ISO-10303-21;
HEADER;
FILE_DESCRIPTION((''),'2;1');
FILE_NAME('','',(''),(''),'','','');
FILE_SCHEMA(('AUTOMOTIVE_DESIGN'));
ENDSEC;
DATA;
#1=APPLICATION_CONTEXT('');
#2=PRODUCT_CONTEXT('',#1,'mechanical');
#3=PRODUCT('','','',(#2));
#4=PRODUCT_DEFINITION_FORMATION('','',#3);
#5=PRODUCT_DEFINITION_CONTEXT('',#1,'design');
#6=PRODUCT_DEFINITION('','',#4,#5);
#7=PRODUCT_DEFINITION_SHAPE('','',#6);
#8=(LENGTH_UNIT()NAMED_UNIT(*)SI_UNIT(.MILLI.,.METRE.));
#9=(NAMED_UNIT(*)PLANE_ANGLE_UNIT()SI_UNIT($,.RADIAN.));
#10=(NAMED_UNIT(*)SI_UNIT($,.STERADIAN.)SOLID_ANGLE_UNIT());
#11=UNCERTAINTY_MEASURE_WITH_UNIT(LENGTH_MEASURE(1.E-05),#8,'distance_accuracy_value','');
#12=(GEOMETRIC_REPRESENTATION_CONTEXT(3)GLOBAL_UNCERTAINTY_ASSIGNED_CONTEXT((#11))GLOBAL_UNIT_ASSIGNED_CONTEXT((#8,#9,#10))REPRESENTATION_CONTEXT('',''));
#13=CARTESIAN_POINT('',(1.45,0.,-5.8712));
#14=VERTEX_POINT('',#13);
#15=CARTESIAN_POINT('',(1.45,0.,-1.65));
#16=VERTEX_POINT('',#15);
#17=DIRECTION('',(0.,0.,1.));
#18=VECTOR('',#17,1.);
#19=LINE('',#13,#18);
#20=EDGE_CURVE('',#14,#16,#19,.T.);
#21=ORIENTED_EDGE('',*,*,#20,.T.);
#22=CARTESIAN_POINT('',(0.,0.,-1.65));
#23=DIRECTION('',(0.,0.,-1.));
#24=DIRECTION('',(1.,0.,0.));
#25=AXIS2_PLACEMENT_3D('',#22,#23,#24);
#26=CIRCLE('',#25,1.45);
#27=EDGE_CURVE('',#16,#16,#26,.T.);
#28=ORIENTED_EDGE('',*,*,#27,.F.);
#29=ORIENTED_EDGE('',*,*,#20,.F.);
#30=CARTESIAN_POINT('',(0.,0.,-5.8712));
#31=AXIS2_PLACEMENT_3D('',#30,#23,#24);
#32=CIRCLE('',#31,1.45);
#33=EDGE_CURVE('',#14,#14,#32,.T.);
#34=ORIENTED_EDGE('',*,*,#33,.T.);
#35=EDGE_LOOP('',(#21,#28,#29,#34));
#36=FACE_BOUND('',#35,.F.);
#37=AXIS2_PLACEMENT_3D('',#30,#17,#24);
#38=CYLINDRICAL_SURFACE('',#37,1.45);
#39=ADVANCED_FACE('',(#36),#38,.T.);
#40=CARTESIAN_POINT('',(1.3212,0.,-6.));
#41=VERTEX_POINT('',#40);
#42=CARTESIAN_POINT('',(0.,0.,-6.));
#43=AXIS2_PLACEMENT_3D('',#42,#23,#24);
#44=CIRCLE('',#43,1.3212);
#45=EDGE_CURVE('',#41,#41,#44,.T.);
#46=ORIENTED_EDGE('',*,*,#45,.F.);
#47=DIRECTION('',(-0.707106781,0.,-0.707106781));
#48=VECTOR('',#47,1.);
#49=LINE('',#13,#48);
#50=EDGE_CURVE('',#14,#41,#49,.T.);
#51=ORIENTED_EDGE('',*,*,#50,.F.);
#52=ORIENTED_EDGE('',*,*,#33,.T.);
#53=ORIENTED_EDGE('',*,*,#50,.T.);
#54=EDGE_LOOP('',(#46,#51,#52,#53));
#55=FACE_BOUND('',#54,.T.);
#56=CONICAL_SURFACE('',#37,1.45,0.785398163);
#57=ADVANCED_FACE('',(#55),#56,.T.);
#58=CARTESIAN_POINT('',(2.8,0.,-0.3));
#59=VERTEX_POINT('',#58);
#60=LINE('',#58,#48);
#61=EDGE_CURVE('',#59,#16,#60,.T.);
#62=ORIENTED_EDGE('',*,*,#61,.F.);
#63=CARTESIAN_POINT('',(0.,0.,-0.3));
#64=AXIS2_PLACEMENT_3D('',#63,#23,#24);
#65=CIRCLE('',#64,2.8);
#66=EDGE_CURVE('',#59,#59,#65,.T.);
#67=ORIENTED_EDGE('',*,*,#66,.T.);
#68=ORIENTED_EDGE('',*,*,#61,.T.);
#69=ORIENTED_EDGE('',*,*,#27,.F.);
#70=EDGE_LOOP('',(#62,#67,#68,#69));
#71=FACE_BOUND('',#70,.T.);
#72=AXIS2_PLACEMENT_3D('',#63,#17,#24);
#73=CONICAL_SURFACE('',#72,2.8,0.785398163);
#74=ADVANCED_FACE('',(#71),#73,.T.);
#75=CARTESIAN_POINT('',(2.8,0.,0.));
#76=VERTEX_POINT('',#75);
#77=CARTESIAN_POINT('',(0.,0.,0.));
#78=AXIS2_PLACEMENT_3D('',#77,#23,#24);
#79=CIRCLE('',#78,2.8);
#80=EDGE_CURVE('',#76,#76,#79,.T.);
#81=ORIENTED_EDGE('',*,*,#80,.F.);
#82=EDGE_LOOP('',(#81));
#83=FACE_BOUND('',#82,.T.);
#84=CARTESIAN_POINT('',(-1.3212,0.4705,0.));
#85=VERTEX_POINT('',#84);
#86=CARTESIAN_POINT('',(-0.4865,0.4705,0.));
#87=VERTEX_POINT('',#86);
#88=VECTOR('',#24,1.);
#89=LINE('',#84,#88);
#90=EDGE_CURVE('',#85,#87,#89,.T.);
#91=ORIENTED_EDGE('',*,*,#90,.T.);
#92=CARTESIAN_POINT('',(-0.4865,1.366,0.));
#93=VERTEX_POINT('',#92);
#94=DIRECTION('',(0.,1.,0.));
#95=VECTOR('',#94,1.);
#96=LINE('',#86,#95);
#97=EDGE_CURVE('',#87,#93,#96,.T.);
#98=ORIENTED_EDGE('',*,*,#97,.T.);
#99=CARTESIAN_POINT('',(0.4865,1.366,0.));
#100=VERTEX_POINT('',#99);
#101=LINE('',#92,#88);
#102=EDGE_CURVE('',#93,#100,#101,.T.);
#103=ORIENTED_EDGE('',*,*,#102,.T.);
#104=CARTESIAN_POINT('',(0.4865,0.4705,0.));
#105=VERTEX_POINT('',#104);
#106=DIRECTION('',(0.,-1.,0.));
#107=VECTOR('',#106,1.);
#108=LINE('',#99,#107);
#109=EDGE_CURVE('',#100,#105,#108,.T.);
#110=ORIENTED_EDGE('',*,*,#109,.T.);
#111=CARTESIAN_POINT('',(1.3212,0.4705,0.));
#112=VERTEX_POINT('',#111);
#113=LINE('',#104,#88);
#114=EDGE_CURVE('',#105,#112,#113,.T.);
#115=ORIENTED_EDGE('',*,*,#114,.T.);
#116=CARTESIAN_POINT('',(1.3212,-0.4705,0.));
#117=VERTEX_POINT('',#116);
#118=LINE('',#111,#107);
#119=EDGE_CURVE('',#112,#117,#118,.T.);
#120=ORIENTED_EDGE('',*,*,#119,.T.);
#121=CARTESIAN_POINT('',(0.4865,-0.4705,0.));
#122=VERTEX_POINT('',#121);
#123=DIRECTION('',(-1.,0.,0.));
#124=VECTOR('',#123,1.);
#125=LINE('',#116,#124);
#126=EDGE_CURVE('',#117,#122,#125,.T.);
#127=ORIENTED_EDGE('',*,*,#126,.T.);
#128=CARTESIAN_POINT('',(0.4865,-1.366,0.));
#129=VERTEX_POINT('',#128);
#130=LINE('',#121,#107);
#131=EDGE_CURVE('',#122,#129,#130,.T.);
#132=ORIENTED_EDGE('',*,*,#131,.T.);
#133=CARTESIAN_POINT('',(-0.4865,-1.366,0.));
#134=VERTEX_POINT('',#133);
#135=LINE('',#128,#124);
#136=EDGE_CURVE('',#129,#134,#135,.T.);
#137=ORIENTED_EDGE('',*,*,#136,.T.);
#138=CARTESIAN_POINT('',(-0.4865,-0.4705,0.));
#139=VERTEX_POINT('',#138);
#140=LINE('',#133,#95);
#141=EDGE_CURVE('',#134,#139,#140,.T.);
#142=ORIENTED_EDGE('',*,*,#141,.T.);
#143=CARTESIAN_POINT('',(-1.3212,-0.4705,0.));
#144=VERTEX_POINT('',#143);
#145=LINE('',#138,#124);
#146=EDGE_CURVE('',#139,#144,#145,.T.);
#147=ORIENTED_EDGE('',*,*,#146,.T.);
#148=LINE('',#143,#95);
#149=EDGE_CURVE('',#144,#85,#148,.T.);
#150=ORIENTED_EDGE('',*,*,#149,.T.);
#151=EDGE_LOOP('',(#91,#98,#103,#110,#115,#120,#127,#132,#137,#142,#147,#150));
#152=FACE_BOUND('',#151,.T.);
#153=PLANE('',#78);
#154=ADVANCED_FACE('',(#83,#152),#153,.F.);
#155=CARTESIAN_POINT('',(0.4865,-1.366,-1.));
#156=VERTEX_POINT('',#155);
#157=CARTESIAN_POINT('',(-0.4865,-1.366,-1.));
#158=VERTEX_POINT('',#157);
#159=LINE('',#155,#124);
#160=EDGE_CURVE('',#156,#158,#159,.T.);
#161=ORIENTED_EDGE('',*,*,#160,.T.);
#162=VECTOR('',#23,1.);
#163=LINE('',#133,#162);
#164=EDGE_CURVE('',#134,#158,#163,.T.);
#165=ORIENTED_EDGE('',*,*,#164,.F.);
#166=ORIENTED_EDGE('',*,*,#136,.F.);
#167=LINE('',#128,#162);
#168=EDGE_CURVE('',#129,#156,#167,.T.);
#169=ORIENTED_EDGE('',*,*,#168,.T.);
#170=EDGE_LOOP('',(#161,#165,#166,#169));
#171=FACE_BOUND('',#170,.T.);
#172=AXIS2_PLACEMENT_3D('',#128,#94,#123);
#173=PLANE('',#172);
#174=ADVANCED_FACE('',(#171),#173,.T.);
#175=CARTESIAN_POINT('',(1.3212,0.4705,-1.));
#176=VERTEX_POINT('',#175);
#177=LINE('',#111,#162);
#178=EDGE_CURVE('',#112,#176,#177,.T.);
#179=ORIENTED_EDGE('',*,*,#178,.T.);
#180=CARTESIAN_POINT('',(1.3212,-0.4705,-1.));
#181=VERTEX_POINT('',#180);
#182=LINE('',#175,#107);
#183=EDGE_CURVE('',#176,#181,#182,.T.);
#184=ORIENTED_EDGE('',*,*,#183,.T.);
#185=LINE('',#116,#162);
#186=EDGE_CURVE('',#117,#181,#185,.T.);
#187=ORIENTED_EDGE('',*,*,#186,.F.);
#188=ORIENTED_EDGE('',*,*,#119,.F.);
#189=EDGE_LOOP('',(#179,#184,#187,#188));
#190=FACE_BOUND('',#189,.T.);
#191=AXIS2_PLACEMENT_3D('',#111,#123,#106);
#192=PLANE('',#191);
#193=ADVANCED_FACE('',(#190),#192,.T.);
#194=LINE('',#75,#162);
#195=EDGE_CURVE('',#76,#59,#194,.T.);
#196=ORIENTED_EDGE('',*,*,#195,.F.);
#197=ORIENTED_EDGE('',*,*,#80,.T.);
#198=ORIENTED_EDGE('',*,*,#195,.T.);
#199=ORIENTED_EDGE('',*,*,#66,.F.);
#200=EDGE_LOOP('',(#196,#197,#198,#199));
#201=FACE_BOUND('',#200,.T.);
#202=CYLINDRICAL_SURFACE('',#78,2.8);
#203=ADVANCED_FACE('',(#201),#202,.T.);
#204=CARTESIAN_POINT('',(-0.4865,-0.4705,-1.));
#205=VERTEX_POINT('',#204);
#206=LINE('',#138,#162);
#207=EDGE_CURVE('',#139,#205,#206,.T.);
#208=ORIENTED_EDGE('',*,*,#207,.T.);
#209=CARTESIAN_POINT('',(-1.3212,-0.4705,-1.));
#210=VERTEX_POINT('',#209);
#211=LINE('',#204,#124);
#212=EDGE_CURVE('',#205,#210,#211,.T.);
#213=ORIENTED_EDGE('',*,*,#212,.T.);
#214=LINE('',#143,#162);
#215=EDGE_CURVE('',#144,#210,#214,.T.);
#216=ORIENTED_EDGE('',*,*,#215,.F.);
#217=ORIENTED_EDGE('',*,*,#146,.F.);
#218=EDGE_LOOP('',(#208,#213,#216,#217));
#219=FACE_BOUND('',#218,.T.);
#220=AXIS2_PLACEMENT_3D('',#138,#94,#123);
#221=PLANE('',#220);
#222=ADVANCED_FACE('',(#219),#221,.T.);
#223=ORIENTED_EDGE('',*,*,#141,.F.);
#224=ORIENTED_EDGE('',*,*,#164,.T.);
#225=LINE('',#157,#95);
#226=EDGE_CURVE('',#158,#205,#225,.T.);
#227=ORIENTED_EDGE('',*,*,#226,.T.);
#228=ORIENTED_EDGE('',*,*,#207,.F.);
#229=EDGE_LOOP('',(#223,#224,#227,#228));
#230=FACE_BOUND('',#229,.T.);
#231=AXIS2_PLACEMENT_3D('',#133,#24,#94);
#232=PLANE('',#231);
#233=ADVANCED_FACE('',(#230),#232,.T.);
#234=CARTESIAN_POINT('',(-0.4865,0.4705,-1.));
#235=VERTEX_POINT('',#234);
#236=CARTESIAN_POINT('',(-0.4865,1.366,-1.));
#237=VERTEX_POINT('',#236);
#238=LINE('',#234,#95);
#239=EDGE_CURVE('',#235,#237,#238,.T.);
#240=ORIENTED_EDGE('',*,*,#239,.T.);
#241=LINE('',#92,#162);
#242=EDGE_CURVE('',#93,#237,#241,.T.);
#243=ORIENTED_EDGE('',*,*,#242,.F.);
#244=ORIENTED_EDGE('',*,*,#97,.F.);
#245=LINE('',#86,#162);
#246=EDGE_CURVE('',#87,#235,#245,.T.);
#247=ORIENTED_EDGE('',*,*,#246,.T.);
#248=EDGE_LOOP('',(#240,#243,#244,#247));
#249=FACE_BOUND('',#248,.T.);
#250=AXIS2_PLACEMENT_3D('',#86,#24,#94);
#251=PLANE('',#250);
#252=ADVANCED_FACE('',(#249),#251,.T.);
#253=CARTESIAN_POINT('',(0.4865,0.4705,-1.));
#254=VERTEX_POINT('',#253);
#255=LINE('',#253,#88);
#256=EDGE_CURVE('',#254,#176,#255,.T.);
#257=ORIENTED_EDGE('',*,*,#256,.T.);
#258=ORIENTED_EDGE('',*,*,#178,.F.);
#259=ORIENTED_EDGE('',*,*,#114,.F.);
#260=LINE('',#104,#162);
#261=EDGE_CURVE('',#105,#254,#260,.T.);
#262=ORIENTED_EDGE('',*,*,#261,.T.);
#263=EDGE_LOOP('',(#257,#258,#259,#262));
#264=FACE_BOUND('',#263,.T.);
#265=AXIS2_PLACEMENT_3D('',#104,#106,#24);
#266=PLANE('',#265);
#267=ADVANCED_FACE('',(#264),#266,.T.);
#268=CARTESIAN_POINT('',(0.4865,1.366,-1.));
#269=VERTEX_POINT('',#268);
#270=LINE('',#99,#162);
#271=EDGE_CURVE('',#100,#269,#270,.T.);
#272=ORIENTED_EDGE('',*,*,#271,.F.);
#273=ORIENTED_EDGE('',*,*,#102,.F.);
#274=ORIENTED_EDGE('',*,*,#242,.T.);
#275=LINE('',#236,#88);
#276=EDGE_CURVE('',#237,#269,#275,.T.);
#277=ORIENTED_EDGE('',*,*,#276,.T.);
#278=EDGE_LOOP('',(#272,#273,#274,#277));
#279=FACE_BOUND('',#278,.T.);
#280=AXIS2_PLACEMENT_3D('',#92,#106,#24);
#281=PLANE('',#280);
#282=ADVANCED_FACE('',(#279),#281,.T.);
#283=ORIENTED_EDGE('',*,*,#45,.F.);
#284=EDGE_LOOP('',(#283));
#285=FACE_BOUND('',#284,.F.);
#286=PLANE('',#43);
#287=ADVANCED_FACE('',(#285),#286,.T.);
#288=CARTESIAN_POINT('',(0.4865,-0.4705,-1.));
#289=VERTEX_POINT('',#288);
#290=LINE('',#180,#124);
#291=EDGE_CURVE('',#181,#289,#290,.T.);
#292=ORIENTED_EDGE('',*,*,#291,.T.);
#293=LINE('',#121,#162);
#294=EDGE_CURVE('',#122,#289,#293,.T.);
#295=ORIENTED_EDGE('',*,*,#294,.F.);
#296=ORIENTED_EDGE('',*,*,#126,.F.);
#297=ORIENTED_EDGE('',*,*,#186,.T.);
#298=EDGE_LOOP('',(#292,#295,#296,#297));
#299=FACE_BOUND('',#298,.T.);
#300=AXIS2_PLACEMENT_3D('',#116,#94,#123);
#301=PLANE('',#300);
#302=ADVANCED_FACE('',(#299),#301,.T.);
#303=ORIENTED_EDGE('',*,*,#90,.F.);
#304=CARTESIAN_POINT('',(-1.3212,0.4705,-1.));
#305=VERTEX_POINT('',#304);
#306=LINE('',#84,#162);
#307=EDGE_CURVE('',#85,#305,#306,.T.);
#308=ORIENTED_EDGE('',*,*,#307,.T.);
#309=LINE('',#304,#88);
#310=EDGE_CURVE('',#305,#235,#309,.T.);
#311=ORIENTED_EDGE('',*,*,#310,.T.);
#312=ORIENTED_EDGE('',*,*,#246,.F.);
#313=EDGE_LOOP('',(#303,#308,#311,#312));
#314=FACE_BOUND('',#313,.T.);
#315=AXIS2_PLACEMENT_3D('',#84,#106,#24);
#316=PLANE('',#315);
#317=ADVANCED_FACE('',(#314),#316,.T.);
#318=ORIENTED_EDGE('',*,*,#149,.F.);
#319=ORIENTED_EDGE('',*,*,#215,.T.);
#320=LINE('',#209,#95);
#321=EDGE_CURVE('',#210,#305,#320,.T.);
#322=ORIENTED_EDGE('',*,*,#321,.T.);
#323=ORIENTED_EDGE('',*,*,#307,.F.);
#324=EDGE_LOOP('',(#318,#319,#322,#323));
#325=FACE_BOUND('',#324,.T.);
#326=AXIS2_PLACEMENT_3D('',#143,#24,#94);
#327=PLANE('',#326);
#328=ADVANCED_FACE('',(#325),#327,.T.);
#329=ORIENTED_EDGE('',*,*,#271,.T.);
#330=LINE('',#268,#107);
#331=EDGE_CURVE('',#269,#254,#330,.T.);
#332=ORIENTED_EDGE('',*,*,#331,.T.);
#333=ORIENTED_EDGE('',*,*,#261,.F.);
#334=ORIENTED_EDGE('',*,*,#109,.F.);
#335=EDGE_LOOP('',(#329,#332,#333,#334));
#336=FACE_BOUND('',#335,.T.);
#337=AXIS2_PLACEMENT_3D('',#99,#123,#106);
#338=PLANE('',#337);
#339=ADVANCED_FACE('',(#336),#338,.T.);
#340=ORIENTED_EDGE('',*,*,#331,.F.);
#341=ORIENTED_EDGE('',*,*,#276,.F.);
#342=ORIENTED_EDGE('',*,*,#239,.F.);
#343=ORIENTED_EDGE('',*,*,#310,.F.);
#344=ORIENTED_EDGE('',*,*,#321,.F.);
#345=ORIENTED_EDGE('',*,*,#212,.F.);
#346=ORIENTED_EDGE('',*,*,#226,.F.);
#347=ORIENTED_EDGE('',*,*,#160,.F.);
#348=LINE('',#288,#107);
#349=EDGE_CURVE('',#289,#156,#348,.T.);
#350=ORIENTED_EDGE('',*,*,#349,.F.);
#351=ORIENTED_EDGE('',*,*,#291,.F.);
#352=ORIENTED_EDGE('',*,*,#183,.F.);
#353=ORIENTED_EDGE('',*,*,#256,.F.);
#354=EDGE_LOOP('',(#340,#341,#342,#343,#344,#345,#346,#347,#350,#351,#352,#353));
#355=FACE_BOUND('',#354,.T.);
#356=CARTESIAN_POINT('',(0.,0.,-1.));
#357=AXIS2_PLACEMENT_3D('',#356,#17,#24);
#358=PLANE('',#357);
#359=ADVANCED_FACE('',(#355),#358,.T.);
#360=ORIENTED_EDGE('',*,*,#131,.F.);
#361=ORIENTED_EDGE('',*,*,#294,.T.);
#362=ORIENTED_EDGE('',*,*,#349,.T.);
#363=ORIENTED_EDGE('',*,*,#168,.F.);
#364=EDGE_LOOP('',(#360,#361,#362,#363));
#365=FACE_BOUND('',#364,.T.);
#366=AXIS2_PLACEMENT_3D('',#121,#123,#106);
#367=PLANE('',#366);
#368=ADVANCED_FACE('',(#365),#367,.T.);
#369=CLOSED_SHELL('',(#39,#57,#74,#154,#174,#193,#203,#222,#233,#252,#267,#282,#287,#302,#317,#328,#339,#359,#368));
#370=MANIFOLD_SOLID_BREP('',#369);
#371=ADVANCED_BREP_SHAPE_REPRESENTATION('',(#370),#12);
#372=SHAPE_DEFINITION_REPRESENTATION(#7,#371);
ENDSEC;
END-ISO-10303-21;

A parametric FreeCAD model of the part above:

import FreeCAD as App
import Part
import Sketcher

V = App.Vector
Q = App.Units.Quantity

doc = App.newDocument("Part")
body = doc.addObject("PartDesign::Body", "Body")

sketch1 = body.newObject("Sketcher::SketchObject", "Sketch")
sketch1.AttachmentSupport = (doc.getObject("XZ_Plane"), [""])
sketch1.MapMode = "FlatFace"
sketch1.addGeometry(Part.LineSegment(V(0, -6, 0), V(0, 0, 0)), False)
sketch1.addGeometry(Part.LineSegment(V(0, 0, 0), V(2.8, 0, 0)), False)
sketch1.addGeometry(Part.LineSegment(V(2.8, 0, 0), V(2.8, -0.3, 0)), False)
sketch1.addGeometry(Part.LineSegment(V(2.8, -0.3, 0), V(1.45, -1.65, 0)), False)
sketch1.addGeometry(Part.LineSegment(V(1.45, -1.65, 0), V(1.45, -5.87, 0)), False)
sketch1.addGeometry(Part.LineSegment(V(1.45, -5.87, 0), V(1.32, -6, 0)), False)
sketch1.addGeometry(Part.LineSegment(V(1.32, -6, 0), V(0, -6, 0)), False)
sketch1.addConstraint(Sketcher.Constraint("Coincident", 0, 2, 1, 1))
sketch1.addConstraint(Sketcher.Constraint("Coincident", 1, 2, 2, 1))
sketch1.addConstraint(Sketcher.Constraint("Coincident", 2, 2, 3, 1))
sketch1.addConstraint(Sketcher.Constraint("Coincident", 3, 2, 4, 1))
sketch1.addConstraint(Sketcher.Constraint("Coincident", 4, 2, 5, 1))
sketch1.addConstraint(Sketcher.Constraint("Coincident", 5, 2, 6, 1))
sketch1.addConstraint(Sketcher.Constraint("Coincident", 6, 2, 0, 1))
sketch1.addConstraint(Sketcher.Constraint("Vertical", 0))
sketch1.addConstraint(Sketcher.Constraint("Horizontal", 1))
sketch1.addConstraint(Sketcher.Constraint("Vertical", 2))
sketch1.addConstraint(Sketcher.Constraint("Vertical", 4))
sketch1.addConstraint(Sketcher.Constraint("Horizontal", 6))
sketch1.addConstraint(Sketcher.Constraint("Coincident", 0, 2, -1, 1))
sketch1.addConstraint(Sketcher.Constraint("Parallel", 3, 5))
sketch1.addConstraint(Sketcher.Constraint("DistanceY", 0, 1, 0, 2, 6.0))
sketch1.addConstraint(Sketcher.Constraint("Angle", 3, Q("-135 deg")))
sketch1.addConstraint(Sketcher.Constraint("DistanceX", 1, 1, 1, 2, 2.8))
sketch1.addConstraint(Sketcher.Constraint("DistanceY", 2, 2, 2, 1, 0.3))
sketch1.addConstraint(Sketcher.Constraint("DistanceX", -1, 1, 3, 2, 1.45))
sketch1.addConstraint(Sketcher.Constraint("DistanceX", 6, 2, 6, 1, 1.3212))
revolution = body.newObject("PartDesign::Revolution", "Revolution")
revolution.Profile = sketch1
revolution.ReferenceAxis = (sketch1, ["V_Axis"])
revolution.Angle = 360

sketch2 = body.newObject("Sketcher::SketchObject", "Sketch001")
sketch2.AttachmentSupport = (doc.getObject("XY_Plane"), [""])
sketch2.MapMode = "FlatFace"
sketch2.addGeometry(Part.LineSegment(V(-1.3, 0.5, 0), V(-1.3, -0.5, 0)), False)
sketch2.addGeometry(Part.LineSegment(V(-1.3, -0.5, 0), V(-0.5, -0.5, 0)), False)
sketch2.addGeometry(Part.LineSegment(V(-0.5, -0.5, 0), V(-0.5, -1.4, 0)), False)
sketch2.addGeometry(Part.LineSegment(V(-0.5, -1.4, 0), V(0.5, -1.4, 0)), False)
sketch2.addGeometry(Part.LineSegment(V(0.5, -1.4, 0), V(0.5, -0.5, 0)), False)
sketch2.addGeometry(Part.LineSegment(V(0.5, -0.5, 0), V(1.3, -0.5, 0)), False)
sketch2.addGeometry(Part.LineSegment(V(1.3, -0.5, 0), V(1.3, 0.5, 0)), False)
sketch2.addGeometry(Part.LineSegment(V(1.3, 0.5, 0), V(0.5, 0.5, 0)), False)
sketch2.addGeometry(Part.LineSegment(V(0.5, 0.5, 0), V(0.5, 1.4, 0)), False)
sketch2.addGeometry(Part.LineSegment(V(0.5, 1.4, 0), V(-0.5, 1.4, 0)), False)
sketch2.addGeometry(Part.LineSegment(V(-0.5, 1.4, 0), V(-0.5, 0.5, 0)), False)
sketch2.addGeometry(Part.LineSegment(V(-0.5, 0.5, 0), V(-1.3, 0.5, 0)), False)
sketch2.addConstraint(Sketcher.Constraint("Coincident", 0, 2, 1, 1))
sketch2.addConstraint(Sketcher.Constraint("Coincident", 1, 2, 2, 1))
sketch2.addConstraint(Sketcher.Constraint("Coincident", 2, 2, 3, 1))
sketch2.addConstraint(Sketcher.Constraint("Coincident", 3, 2, 4, 1))
sketch2.addConstraint(Sketcher.Constraint("Coincident", 4, 2, 5, 1))
sketch2.addConstraint(Sketcher.Constraint("Coincident", 5, 2, 6, 1))
sketch2.addConstraint(Sketcher.Constraint("Coincident", 6, 2, 7, 1))
sketch2.addConstraint(Sketcher.Constraint("Coincident", 7, 2, 8, 1))
sketch2.addConstraint(Sketcher.Constraint("Coincident", 8, 2, 9, 1))
sketch2.addConstraint(Sketcher.Constraint("Coincident", 9, 2, 10, 1))
sketch2.addConstraint(Sketcher.Constraint("Coincident", 10, 2, 11, 1))
sketch2.addConstraint(Sketcher.Constraint("Coincident", 11, 2, 0, 1))
sketch2.addConstraint(Sketcher.Constraint("Vertical", 0))
sketch2.addConstraint(Sketcher.Constraint("Horizontal", 1))
sketch2.addConstraint(Sketcher.Constraint("Vertical", 2))
sketch2.addConstraint(Sketcher.Constraint("Horizontal", 3))
sketch2.addConstraint(Sketcher.Constraint("Vertical", 4))
sketch2.addConstraint(Sketcher.Constraint("Horizontal", 5))
sketch2.addConstraint(Sketcher.Constraint("Vertical", 6))
sketch2.addConstraint(Sketcher.Constraint("Horizontal", 7))
sketch2.addConstraint(Sketcher.Constraint("Vertical", 8))
sketch2.addConstraint(Sketcher.Constraint("Horizontal", 9))
sketch2.addConstraint(Sketcher.Constraint("Vertical", 10))
sketch2.addConstraint(Sketcher.Constraint("Horizontal", 11))
sketch2.addConstraint(Sketcher.Constraint("Symmetric", 0, 2, 6, 2, -1, 1))
sketch2.addConstraint(Sketcher.Constraint("Symmetric", 2, 2, 8, 2, -1, 1))
sketch2.addConstraint(Sketcher.Constraint("Symmetric", 4, 2, 10, 2, -1, 1))
sketch2.addConstraint(Sketcher.Constraint("Symmetric", 1, 2, 4, 2, -2))
sketch2.addConstraint(Sketcher.Constraint("DistanceX", 3, 1, 3, 2, 0.973))
sketch2.addConstraint(Sketcher.Constraint("DistanceY", 0, 2, 0, 1, 0.941))
sketch2.addConstraint(Sketcher.Constraint("DistanceX", 1, 1, 1, 2, 0.8347))
sketch2.addConstraint(Sketcher.Constraint("DistanceY", 2, 2, 2, 1, 0.8955))
pocket1 = body.newObject("PartDesign::Pocket", "Pocket")
pocket1.Profile = sketch2
pocket1.Length = 1

doc.recompute()
